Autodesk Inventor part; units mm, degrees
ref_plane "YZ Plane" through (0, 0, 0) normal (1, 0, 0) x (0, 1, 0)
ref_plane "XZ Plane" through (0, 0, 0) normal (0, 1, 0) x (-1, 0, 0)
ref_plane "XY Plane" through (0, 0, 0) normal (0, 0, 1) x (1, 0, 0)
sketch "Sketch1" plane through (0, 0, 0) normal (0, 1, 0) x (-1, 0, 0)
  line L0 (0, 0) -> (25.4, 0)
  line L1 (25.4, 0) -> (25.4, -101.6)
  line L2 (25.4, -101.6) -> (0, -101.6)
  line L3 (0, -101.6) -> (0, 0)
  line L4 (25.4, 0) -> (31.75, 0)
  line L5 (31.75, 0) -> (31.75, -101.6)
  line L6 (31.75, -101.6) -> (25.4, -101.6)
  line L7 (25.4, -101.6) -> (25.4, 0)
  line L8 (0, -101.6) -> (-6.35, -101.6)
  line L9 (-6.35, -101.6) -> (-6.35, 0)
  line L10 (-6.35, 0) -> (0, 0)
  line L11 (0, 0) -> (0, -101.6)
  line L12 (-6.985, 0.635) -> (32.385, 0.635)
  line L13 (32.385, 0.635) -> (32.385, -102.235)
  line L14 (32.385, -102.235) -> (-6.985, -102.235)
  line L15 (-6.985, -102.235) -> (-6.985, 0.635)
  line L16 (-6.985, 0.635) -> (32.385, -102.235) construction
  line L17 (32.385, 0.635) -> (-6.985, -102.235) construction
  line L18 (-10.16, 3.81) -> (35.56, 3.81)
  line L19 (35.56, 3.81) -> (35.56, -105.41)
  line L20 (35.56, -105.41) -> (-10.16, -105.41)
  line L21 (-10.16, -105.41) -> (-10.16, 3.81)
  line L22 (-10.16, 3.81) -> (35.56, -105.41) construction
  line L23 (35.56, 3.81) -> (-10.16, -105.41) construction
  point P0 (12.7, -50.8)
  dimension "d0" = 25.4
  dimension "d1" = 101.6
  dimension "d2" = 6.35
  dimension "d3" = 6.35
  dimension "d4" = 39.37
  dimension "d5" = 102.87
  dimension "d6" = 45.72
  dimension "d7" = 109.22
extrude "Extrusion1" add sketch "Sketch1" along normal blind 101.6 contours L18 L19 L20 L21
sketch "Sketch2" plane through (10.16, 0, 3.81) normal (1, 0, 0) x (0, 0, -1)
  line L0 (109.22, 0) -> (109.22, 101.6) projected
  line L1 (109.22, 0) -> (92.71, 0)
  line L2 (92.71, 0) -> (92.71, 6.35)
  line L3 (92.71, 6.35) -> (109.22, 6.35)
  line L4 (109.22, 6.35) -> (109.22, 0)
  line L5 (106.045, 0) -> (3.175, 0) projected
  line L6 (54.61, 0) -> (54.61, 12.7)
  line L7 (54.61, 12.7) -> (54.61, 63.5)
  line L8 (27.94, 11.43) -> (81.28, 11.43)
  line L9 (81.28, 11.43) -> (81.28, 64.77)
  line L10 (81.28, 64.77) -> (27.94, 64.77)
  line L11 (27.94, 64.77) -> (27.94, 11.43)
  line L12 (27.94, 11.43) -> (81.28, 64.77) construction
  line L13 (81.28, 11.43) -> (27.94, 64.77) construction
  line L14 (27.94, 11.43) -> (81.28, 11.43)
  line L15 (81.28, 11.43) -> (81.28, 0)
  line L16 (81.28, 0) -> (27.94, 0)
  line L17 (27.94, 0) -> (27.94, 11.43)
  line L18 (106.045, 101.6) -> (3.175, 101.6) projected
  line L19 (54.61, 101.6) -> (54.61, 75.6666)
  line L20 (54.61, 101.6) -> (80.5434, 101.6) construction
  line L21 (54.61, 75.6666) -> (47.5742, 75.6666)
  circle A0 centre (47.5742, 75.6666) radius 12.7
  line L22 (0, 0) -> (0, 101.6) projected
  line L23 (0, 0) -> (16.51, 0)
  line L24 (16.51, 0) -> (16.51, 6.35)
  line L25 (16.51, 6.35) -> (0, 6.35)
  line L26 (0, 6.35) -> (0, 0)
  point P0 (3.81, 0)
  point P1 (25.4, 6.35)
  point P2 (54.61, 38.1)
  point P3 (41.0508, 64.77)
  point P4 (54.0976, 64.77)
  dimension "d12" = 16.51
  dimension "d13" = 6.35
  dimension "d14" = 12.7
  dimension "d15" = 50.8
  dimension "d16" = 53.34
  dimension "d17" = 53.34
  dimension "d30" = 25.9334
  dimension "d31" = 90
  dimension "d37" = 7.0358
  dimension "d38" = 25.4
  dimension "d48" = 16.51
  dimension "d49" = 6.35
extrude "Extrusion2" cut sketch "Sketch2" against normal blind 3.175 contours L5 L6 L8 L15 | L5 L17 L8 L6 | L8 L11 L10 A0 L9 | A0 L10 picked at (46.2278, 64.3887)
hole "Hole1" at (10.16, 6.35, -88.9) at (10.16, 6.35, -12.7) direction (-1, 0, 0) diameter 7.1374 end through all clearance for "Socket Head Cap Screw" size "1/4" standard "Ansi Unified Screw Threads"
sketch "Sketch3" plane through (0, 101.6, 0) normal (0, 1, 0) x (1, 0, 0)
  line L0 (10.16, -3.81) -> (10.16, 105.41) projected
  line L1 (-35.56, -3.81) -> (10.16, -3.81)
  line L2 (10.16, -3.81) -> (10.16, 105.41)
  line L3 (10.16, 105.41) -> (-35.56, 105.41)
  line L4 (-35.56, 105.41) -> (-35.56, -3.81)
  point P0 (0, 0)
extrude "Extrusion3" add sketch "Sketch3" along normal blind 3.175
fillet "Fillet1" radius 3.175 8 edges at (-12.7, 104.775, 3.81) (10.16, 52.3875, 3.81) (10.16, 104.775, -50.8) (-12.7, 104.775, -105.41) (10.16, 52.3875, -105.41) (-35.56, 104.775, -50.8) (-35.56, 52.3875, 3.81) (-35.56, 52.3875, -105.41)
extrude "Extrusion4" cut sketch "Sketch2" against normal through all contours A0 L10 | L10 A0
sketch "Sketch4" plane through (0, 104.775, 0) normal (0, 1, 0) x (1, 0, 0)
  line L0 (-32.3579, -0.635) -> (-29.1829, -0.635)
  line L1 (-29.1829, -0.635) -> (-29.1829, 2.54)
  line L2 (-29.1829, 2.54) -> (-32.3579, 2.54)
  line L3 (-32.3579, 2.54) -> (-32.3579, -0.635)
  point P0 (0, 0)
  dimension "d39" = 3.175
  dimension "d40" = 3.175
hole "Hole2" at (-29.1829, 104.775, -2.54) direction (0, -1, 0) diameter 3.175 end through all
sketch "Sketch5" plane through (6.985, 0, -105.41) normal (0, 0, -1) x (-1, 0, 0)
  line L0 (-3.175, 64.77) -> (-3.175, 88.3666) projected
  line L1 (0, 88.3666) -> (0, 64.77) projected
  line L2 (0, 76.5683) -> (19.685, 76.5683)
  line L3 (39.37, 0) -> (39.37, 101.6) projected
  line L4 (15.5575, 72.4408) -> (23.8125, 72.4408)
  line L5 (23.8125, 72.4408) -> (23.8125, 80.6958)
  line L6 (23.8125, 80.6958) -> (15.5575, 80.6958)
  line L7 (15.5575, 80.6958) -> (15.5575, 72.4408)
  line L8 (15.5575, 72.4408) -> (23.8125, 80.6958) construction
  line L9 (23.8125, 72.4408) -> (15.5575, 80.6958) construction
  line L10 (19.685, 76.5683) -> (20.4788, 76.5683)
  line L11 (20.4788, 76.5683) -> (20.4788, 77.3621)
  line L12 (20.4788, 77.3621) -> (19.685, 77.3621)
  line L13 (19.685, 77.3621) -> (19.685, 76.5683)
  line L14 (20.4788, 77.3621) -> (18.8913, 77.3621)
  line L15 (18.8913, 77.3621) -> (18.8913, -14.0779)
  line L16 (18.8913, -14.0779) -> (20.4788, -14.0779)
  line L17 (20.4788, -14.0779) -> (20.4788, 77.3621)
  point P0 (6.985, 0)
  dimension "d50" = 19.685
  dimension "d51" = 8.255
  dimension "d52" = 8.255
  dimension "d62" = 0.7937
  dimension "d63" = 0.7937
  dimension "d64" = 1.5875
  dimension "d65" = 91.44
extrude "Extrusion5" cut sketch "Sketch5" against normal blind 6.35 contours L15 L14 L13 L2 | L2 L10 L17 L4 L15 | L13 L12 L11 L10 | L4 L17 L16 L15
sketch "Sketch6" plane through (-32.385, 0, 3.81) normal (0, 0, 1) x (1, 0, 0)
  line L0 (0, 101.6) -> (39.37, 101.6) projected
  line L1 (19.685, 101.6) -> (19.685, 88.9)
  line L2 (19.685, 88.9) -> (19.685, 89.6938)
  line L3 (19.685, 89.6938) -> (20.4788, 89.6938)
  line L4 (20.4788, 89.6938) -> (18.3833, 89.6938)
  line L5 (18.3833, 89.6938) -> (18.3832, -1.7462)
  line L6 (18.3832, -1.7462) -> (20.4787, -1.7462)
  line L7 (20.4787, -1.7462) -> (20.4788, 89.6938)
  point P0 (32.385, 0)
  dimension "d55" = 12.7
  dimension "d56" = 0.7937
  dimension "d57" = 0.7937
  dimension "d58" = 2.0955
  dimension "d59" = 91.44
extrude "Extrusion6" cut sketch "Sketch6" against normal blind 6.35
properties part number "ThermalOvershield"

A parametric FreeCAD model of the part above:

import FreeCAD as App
import Part
import Sketcher

V = App.Vector
Q = App.Units.Quantity


def edges_at(feature, points):
    """Names of the edges that pass closest to the given points."""
    edges = feature.Shape.Edges
    near = lambda p: min(range(len(edges)), key=lambda i: edges[i].distToShape(Part.Vertex(*p))[0])
    return sorted({f"Edge{near(p) + 1}" for p in points})

doc = App.newDocument("Part")
body = doc.addObject("PartDesign::Body", "Body")

# Sketch on XZ plane
sketch1 = doc.addObject("Sketcher::SketchObject", "Sketch")
body.addObject(sketch1)
sketch1.AttachmentSupport = (doc.XZ_Plane, [""])
sketch1.MapMode = "FlatFace"
sketch1.addGeometry([
    Part.LineSegment(V(-36, 4, 0), V(10, 4, 0)),  # 0
    Part.LineSegment(V(10, 4, 0), V(10, -105, 0)),  # 1
    Part.LineSegment(V(10, -105, 0), V(-36, -105, 0)),  # 2
    Part.LineSegment(V(-36, -105, 0), V(-36, 4, 0)),  # 3
    Part.LineSegment(V(7, -102, 0), V(7, 1, 0)),  # 4
    Part.LineSegment(V(7, 1, 0), V(-32, 1, 0)),  # 5
    Part.LineSegment(V(-32, 1, 0), V(-32, -102, 0)),  # 6
    Part.LineSegment(V(-32, -102, 0), V(7, -102, 0)),  # 7
], False)
sketch1.addConstraint([
    Sketcher.Constraint("Coincident", 0, 2, 1, 1),
    Sketcher.Constraint("Coincident", 1, 2, 2, 1),
    Sketcher.Constraint("Coincident", 2, 2, 3, 1),
    Sketcher.Constraint("Coincident", 3, 2, 0, 1),
    Sketcher.Constraint("Coincident", 4, 2, 5, 1),
    Sketcher.Constraint("Coincident", 5, 2, 6, 1),
    Sketcher.Constraint("Coincident", 6, 2, 7, 1),
    Sketcher.Constraint("Coincident", 7, 2, 4, 1),
    Sketcher.Constraint("Horizontal", 0),
    Sketcher.Constraint("Vertical", 1),
    Sketcher.Constraint("Horizontal", 2),
    Sketcher.Constraint("Vertical", 3),
    Sketcher.Constraint("Vertical", 4),
    Sketcher.Constraint("Horizontal", 5),
    Sketcher.Constraint("Vertical", 6),
    Sketcher.Constraint("Horizontal", 7),
    Sketcher.Constraint("DistanceX", 0, 1, 0, 2, Q("1.8 in")),
    Sketcher.Constraint("DistanceY", 1, 2, 1, 1, Q("4.3 in")),
    Sketcher.Constraint("DistanceX", 5, 2, 5, 1, Q("1.55 in")),
    Sketcher.Constraint("DistanceY", 4, 1, 4, 2, Q("4.05 in")),
    Sketcher.Constraint("DistanceX", -1, 1, 0, 2, Q("0.4 in")),
    Sketcher.Constraint("DistanceY", -1, 1, 0, 2, Q("0.15 in")),
    Sketcher.Constraint("DistanceX", -1, 1, 4, 2, Q("0.275 in")),
    Sketcher.Constraint("DistanceY", -1, 1, 4, 2, Q("0.025 in")),
])
pad1 = doc.addObject("PartDesign::Pad", "Pad")
body.addObject(pad1)
pad1.Profile = sketch1
pad1.Length = Q("4 in")
pad1.Reversed = True

# Sketch on YZ plane
sketch2 = doc.addObject("Sketcher::SketchObject", "Sketch001")
body.addObject(sketch2)
sketch2.AttachmentSupport = (doc.YZ_Plane, [""])
sketch2.MapMode = "FlatFace"
sketch2.AttachmentOffset = App.Placement(V(0, 0, 0.4 * 25.4), App.Rotation())
sketch2.addGeometry([
    Part.LineSegment(V(0, -77, 0), V(65, -77, 0)),
    Part.LineSegment(V(65, -77, 0), V(65, -24, 0)),
    Part.LineSegment(V(65, -24, 0), V(0, -24, 0)),
    Part.LineSegment(V(0, -24, 0), V(0, -77, 0)),
], False)
sketch2.addConstraint([
    Sketcher.Constraint("Coincident", 0, 2, 1, 1),
    Sketcher.Constraint("Coincident", 1, 2, 2, 1),
    Sketcher.Constraint("Coincident", 2, 2, 3, 1),
    Sketcher.Constraint("Coincident", 3, 2, 0, 1),
    Sketcher.Constraint("Horizontal", 0),
    Sketcher.Constraint("Vertical", 1),
    Sketcher.Constraint("Horizontal", 2),
    Sketcher.Constraint("Vertical", 3),
    Sketcher.Constraint("PointOnObject", 2, 2, -2),
    Sketcher.Constraint("DistanceY", 1, 1, 1, 2, Q("2.1 in")),
    Sketcher.Constraint("DistanceX", 0, 1, 0, 2, Q("2.55 in")),
    Sketcher.Constraint("DistanceY", 0, 2, -1, 1, Q("3.05 in")),
])
pocket1 = doc.addObject("PartDesign::Pocket", "Pocket")
body.addObject(pocket1)
pocket1.Profile = sketch2
pocket1.Length = Q("0.125 in")

# Sketch on YZ plane
sketch3 = doc.addObject("Sketcher::SketchObject", "Sketch002")
body.addObject(sketch3)
sketch3.AttachmentSupport = (doc.YZ_Plane, [""])
sketch3.MapMode = "FlatFace"
sketch3.AttachmentOffset = App.Placement(V(0, 0, 0.4 * 25.4), App.Rotation())
sketch3.addGeometry([
    Part.Circle(V(6.3, -88.9, 0), V(0, 0, 1), 3.6),
    Part.Circle(V(6.3, -12.7, 0), V(0, 0, 1), 3.6),
], False)
sketch3.addConstraint([
    Sketcher.Constraint("Equal", 0, 1),
    Sketcher.Constraint("Vertical", 0, 3, 1, 3),
    Sketcher.Constraint("Diameter", 0, Q("0.281 in")),
    Sketcher.Constraint("DistanceY", 0, 3, 1, 3, Q("3 in")),
    Sketcher.Constraint("DistanceY", 0, 3, -1, 1, Q("3.5 in")),
    Sketcher.Constraint("DistanceX", -1, 1, 0, 3, Q("0.25 in")),
])
doc.recompute()
hole = doc.addObject("PartDesign::Hole", "Hole")
body.addObject(hole)
hole.Profile = sketch3
hole.ThreadType = "None"
hole.Diameter = Q("0.281 in")
hole.DepthType = "ThroughAll"

# Sketch on XZ plane
sketch4 = doc.addObject("Sketcher::SketchObject", "Sketch003")
body.addObject(sketch4)
sketch4.AttachmentSupport = (doc.XZ_Plane, [""])
sketch4.MapMode = "FlatFace"
sketch4.AttachmentOffset = App.Placement(V(0, 0, -4 * 25.4), App.Rotation())
sketch4.addGeometry([
    Part.LineSegment(V(-36, 4, 0), V(10, 4, 0)),
    Part.LineSegment(V(10, 4, 0), V(10, -105, 0)),
    Part.LineSegment(V(10, -105, 0), V(-36, -105, 0)),
    Part.LineSegment(V(-36, -105, 0), V(-36, 4, 0)),
], False)
sketch4.addConstraint([
    Sketcher.Constraint("Coincident", 0, 2, 1, 1),
    Sketcher.Constraint("Coincident", 1, 2, 2, 1),
    Sketcher.Constraint("Coincident", 2, 2, 3, 1),
    Sketcher.Constraint("Coincident", 3, 2, 0, 1),
    Sketcher.Constraint("Horizontal", 0),
    Sketcher.Constraint("Vertical", 1),
    Sketcher.Constraint("Horizontal", 2),
    Sketcher.Constraint("Vertical", 3),
    Sketcher.Constraint("DistanceX", 0, 1, 0, 2, Q("1.8 in")),
    Sketcher.Constraint("DistanceY", 1, 2, 1, 1, Q("4.3 in")),
    Sketcher.Constraint("DistanceX", -1, 1, 0, 2, Q("0.4 in")),
    Sketcher.Constraint("DistanceY", -1, 1, 0, 2, Q("0.15 in")),
])
pad2 = doc.addObject("PartDesign::Pad", "Pad001")
body.addObject(pad2)
pad2.Profile = sketch4
pad2.Length = Q("0.125 in")
pad2.Reversed = True
doc.recompute()

fillet = doc.addObject("PartDesign::Fillet", "Fillet")
body.addObject(fillet)
fillet.Base = (pad2, edges_at(pad2, [
    (-12.7, 104.775, 3.81),
    (10.16, 52.388, 3.81),
    (10.16, 104.775, -50.8),
    (-12.7, 104.775, -105.41),
    (10.16, 52.388, -105.41),
    (-35.56, 104.775, -50.8),
    (-35.56, 52.388, 3.81),
    (-35.56, 52.388, -105.41),
]))
fillet.Radius = Q("0.125 in")

# Sketch on YZ plane
sketch5 = doc.addObject("Sketcher::SketchObject", "Sketch004")
body.addObject(sketch5)
sketch5.AttachmentSupport = (doc.YZ_Plane, [""])
sketch5.MapMode = "FlatFace"
sketch5.AttachmentOffset = App.Placement(V(0, 0, 0.4 * 25.4), App.Rotation())
sketch5.addGeometry(Part.Circle(V(76, -44, 0), V(0, 0, 1), 13), False)
sketch5.addConstraint([
    Sketcher.Constraint("Diameter", 0, Q("1 in")),
    Sketcher.Constraint("DistanceX", -1, 1, 0, 3, Q("2.979 in")),
    Sketcher.Constraint("DistanceY", 0, 3, -1, 1, Q("1.723 in")),
])
pocket2 = doc.addObject("PartDesign::Pocket", "Pocket001")
body.addObject(pocket2)
pocket2.Profile = sketch5
pocket2.Type = "ThroughAll"

# Sketch on XZ plane
sketch6 = doc.addObject("Sketcher::SketchObject", "Sketch005")
body.addObject(sketch6)
sketch6.AttachmentSupport = (doc.XZ_Plane, [""])
sketch6.MapMode = "FlatFace"
sketch6.AttachmentOffset = App.Placement(V(0, 0, -4.125 * 25.4), App.Rotation())
sketch6.addGeometry(Part.Circle(V(-29.2, -2.5, 0), V(0, 0, 1), 1.6), False)
sketch6.addConstraint([
    Sketcher.Constraint("Diameter", 0, Q("0.125 in")),
    Sketcher.Constraint("DistanceY", 0, 3, -1, 1, Q("0.1 in")),
    Sketcher.Constraint("DistanceX", 0, 3, -1, 1, Q("29.183 mm")),
])
doc.recompute()
hole2 = doc.addObject("PartDesign::Hole", "Hole001")
body.addObject(hole2)
hole2.Profile = sketch6
hole2.ThreadType = "None"
hole2.Diameter = Q("0.125 in")
hole2.DepthType = "ThroughAll"
hole2.Reversed = True

# Sketch on XY plane
sketch7 = doc.addObject("Sketcher::SketchObject", "Sketch006")
body.addObject(sketch7)
sketch7.AttachmentSupport = (doc.XY_Plane, [""])
sketch7.MapMode = "FlatFace"
sketch7.AttachmentOffset = App.Placement(V(0, 0, -4.15 * 25.4), App.Rotation())
sketch7.addGeometry([
    Part.LineSegment(V(-11.9, 77.4, 0), V(-11.9, -14.1, 0)),
    Part.LineSegment(V(-11.9, -14.1, 0), V(-13.5, -14.1, 0)),
    Part.LineSegment(V(-13.5, -14.1, 0), V(-13.5, 77.4, 0)),
    Part.LineSegment(V(-13.5, 77.4, 0), V(-11.9, 77.4, 0)),
], False)
sketch7.addConstraint([
    Sketcher.Constraint("Coincident", 0, 2, 1, 1),
    Sketcher.Constraint("Coincident", 1, 2, 2, 1),
    Sketcher.Constraint("Coincident", 2, 2, 3, 1),
    Sketcher.Constraint("Coincident", 3, 2, 0, 1),
    Sketcher.Constraint("Vertical", 0),
    Sketcher.Constraint("Horizontal", 1),
    Sketcher.Constraint("Vertical", 2),
    Sketcher.Constraint("Horizontal", 3),
    Sketcher.Constraint("DistanceY", 0, 2, 0, 1, Q("3.6 in")),
    Sketcher.Constraint("DistanceX", 1, 2, 1, 1, Q("0.0625 in")),
    Sketcher.Constraint("DistanceX", 0, 2, -1, 1, Q("0.468752 in")),
    Sketcher.Constraint("DistanceY", 0, 2, -1, 1, Q("14.078 mm")),
])
pocket3 = doc.addObject("PartDesign::Pocket", "Pocket002")
body.addObject(pocket3)
pocket3.Profile = sketch7
pocket3.Length = Q("0.25 in")
pocket3.Reversed = True

# Sketch on XY plane
sketch8 = doc.addObject("Sketcher::SketchObject", "Sketch007")
body.addObject(sketch8)
sketch8.AttachmentSupport = (doc.XY_Plane, [""])
sketch8.MapMode = "FlatFace"
sketch8.AttachmentOffset = App.Placement(V(0, 0, 0.15 * 25.4), App.Rotation())
sketch8.addGeometry([
    Part.LineSegment(V(-11.9, 89.7, 0), V(-14, 89.7, 0)),
    Part.LineSegment(V(-14, 89.7, 0), V(-14, -1.7, 0)),
    Part.LineSegment(V(-14, -1.7, 0), V(-11.9, -1.7, 0)),
    Part.LineSegment(V(-11.9, -1.7, 0), V(-11.9, 89.7, 0)),
], False)
sketch8.addConstraint([
    Sketcher.Constraint("Coincident", 0, 2, 1, 1),
    Sketcher.Constraint("Coincident", 1, 2, 2, 1),
    Sketcher.Constraint("Coincident", 2, 2, 3, 1),
    Sketcher.Constraint("Coincident", 3, 2, 0, 1),
    Sketcher.Constraint("Horizontal", 0),
    Sketcher.Constraint("Vertical", 1),
    Sketcher.Constraint("Horizontal", 2),
    Sketcher.Constraint("Vertical", 3),
    Sketcher.Constraint("DistanceY", 1, 2, 1, 1, Q("3.6 in")),
    Sketcher.Constraint("DistanceX", 0, 2, 0, 1, Q("0.0825 in")),
    Sketcher.Constraint("DistanceY", -1, 1, 0, 2, Q("3.531252 in")),
    Sketcher.Constraint("DistanceX", 2, 2, -1, 1, Q("0.468752 in")),
])
pocket4 = doc.addObject("PartDesign::Pocket", "Pocket003")
body.addObject(pocket4)
pocket4.Profile = sketch8
pocket4.Length = Q("0.25 in")

doc.recompute()
